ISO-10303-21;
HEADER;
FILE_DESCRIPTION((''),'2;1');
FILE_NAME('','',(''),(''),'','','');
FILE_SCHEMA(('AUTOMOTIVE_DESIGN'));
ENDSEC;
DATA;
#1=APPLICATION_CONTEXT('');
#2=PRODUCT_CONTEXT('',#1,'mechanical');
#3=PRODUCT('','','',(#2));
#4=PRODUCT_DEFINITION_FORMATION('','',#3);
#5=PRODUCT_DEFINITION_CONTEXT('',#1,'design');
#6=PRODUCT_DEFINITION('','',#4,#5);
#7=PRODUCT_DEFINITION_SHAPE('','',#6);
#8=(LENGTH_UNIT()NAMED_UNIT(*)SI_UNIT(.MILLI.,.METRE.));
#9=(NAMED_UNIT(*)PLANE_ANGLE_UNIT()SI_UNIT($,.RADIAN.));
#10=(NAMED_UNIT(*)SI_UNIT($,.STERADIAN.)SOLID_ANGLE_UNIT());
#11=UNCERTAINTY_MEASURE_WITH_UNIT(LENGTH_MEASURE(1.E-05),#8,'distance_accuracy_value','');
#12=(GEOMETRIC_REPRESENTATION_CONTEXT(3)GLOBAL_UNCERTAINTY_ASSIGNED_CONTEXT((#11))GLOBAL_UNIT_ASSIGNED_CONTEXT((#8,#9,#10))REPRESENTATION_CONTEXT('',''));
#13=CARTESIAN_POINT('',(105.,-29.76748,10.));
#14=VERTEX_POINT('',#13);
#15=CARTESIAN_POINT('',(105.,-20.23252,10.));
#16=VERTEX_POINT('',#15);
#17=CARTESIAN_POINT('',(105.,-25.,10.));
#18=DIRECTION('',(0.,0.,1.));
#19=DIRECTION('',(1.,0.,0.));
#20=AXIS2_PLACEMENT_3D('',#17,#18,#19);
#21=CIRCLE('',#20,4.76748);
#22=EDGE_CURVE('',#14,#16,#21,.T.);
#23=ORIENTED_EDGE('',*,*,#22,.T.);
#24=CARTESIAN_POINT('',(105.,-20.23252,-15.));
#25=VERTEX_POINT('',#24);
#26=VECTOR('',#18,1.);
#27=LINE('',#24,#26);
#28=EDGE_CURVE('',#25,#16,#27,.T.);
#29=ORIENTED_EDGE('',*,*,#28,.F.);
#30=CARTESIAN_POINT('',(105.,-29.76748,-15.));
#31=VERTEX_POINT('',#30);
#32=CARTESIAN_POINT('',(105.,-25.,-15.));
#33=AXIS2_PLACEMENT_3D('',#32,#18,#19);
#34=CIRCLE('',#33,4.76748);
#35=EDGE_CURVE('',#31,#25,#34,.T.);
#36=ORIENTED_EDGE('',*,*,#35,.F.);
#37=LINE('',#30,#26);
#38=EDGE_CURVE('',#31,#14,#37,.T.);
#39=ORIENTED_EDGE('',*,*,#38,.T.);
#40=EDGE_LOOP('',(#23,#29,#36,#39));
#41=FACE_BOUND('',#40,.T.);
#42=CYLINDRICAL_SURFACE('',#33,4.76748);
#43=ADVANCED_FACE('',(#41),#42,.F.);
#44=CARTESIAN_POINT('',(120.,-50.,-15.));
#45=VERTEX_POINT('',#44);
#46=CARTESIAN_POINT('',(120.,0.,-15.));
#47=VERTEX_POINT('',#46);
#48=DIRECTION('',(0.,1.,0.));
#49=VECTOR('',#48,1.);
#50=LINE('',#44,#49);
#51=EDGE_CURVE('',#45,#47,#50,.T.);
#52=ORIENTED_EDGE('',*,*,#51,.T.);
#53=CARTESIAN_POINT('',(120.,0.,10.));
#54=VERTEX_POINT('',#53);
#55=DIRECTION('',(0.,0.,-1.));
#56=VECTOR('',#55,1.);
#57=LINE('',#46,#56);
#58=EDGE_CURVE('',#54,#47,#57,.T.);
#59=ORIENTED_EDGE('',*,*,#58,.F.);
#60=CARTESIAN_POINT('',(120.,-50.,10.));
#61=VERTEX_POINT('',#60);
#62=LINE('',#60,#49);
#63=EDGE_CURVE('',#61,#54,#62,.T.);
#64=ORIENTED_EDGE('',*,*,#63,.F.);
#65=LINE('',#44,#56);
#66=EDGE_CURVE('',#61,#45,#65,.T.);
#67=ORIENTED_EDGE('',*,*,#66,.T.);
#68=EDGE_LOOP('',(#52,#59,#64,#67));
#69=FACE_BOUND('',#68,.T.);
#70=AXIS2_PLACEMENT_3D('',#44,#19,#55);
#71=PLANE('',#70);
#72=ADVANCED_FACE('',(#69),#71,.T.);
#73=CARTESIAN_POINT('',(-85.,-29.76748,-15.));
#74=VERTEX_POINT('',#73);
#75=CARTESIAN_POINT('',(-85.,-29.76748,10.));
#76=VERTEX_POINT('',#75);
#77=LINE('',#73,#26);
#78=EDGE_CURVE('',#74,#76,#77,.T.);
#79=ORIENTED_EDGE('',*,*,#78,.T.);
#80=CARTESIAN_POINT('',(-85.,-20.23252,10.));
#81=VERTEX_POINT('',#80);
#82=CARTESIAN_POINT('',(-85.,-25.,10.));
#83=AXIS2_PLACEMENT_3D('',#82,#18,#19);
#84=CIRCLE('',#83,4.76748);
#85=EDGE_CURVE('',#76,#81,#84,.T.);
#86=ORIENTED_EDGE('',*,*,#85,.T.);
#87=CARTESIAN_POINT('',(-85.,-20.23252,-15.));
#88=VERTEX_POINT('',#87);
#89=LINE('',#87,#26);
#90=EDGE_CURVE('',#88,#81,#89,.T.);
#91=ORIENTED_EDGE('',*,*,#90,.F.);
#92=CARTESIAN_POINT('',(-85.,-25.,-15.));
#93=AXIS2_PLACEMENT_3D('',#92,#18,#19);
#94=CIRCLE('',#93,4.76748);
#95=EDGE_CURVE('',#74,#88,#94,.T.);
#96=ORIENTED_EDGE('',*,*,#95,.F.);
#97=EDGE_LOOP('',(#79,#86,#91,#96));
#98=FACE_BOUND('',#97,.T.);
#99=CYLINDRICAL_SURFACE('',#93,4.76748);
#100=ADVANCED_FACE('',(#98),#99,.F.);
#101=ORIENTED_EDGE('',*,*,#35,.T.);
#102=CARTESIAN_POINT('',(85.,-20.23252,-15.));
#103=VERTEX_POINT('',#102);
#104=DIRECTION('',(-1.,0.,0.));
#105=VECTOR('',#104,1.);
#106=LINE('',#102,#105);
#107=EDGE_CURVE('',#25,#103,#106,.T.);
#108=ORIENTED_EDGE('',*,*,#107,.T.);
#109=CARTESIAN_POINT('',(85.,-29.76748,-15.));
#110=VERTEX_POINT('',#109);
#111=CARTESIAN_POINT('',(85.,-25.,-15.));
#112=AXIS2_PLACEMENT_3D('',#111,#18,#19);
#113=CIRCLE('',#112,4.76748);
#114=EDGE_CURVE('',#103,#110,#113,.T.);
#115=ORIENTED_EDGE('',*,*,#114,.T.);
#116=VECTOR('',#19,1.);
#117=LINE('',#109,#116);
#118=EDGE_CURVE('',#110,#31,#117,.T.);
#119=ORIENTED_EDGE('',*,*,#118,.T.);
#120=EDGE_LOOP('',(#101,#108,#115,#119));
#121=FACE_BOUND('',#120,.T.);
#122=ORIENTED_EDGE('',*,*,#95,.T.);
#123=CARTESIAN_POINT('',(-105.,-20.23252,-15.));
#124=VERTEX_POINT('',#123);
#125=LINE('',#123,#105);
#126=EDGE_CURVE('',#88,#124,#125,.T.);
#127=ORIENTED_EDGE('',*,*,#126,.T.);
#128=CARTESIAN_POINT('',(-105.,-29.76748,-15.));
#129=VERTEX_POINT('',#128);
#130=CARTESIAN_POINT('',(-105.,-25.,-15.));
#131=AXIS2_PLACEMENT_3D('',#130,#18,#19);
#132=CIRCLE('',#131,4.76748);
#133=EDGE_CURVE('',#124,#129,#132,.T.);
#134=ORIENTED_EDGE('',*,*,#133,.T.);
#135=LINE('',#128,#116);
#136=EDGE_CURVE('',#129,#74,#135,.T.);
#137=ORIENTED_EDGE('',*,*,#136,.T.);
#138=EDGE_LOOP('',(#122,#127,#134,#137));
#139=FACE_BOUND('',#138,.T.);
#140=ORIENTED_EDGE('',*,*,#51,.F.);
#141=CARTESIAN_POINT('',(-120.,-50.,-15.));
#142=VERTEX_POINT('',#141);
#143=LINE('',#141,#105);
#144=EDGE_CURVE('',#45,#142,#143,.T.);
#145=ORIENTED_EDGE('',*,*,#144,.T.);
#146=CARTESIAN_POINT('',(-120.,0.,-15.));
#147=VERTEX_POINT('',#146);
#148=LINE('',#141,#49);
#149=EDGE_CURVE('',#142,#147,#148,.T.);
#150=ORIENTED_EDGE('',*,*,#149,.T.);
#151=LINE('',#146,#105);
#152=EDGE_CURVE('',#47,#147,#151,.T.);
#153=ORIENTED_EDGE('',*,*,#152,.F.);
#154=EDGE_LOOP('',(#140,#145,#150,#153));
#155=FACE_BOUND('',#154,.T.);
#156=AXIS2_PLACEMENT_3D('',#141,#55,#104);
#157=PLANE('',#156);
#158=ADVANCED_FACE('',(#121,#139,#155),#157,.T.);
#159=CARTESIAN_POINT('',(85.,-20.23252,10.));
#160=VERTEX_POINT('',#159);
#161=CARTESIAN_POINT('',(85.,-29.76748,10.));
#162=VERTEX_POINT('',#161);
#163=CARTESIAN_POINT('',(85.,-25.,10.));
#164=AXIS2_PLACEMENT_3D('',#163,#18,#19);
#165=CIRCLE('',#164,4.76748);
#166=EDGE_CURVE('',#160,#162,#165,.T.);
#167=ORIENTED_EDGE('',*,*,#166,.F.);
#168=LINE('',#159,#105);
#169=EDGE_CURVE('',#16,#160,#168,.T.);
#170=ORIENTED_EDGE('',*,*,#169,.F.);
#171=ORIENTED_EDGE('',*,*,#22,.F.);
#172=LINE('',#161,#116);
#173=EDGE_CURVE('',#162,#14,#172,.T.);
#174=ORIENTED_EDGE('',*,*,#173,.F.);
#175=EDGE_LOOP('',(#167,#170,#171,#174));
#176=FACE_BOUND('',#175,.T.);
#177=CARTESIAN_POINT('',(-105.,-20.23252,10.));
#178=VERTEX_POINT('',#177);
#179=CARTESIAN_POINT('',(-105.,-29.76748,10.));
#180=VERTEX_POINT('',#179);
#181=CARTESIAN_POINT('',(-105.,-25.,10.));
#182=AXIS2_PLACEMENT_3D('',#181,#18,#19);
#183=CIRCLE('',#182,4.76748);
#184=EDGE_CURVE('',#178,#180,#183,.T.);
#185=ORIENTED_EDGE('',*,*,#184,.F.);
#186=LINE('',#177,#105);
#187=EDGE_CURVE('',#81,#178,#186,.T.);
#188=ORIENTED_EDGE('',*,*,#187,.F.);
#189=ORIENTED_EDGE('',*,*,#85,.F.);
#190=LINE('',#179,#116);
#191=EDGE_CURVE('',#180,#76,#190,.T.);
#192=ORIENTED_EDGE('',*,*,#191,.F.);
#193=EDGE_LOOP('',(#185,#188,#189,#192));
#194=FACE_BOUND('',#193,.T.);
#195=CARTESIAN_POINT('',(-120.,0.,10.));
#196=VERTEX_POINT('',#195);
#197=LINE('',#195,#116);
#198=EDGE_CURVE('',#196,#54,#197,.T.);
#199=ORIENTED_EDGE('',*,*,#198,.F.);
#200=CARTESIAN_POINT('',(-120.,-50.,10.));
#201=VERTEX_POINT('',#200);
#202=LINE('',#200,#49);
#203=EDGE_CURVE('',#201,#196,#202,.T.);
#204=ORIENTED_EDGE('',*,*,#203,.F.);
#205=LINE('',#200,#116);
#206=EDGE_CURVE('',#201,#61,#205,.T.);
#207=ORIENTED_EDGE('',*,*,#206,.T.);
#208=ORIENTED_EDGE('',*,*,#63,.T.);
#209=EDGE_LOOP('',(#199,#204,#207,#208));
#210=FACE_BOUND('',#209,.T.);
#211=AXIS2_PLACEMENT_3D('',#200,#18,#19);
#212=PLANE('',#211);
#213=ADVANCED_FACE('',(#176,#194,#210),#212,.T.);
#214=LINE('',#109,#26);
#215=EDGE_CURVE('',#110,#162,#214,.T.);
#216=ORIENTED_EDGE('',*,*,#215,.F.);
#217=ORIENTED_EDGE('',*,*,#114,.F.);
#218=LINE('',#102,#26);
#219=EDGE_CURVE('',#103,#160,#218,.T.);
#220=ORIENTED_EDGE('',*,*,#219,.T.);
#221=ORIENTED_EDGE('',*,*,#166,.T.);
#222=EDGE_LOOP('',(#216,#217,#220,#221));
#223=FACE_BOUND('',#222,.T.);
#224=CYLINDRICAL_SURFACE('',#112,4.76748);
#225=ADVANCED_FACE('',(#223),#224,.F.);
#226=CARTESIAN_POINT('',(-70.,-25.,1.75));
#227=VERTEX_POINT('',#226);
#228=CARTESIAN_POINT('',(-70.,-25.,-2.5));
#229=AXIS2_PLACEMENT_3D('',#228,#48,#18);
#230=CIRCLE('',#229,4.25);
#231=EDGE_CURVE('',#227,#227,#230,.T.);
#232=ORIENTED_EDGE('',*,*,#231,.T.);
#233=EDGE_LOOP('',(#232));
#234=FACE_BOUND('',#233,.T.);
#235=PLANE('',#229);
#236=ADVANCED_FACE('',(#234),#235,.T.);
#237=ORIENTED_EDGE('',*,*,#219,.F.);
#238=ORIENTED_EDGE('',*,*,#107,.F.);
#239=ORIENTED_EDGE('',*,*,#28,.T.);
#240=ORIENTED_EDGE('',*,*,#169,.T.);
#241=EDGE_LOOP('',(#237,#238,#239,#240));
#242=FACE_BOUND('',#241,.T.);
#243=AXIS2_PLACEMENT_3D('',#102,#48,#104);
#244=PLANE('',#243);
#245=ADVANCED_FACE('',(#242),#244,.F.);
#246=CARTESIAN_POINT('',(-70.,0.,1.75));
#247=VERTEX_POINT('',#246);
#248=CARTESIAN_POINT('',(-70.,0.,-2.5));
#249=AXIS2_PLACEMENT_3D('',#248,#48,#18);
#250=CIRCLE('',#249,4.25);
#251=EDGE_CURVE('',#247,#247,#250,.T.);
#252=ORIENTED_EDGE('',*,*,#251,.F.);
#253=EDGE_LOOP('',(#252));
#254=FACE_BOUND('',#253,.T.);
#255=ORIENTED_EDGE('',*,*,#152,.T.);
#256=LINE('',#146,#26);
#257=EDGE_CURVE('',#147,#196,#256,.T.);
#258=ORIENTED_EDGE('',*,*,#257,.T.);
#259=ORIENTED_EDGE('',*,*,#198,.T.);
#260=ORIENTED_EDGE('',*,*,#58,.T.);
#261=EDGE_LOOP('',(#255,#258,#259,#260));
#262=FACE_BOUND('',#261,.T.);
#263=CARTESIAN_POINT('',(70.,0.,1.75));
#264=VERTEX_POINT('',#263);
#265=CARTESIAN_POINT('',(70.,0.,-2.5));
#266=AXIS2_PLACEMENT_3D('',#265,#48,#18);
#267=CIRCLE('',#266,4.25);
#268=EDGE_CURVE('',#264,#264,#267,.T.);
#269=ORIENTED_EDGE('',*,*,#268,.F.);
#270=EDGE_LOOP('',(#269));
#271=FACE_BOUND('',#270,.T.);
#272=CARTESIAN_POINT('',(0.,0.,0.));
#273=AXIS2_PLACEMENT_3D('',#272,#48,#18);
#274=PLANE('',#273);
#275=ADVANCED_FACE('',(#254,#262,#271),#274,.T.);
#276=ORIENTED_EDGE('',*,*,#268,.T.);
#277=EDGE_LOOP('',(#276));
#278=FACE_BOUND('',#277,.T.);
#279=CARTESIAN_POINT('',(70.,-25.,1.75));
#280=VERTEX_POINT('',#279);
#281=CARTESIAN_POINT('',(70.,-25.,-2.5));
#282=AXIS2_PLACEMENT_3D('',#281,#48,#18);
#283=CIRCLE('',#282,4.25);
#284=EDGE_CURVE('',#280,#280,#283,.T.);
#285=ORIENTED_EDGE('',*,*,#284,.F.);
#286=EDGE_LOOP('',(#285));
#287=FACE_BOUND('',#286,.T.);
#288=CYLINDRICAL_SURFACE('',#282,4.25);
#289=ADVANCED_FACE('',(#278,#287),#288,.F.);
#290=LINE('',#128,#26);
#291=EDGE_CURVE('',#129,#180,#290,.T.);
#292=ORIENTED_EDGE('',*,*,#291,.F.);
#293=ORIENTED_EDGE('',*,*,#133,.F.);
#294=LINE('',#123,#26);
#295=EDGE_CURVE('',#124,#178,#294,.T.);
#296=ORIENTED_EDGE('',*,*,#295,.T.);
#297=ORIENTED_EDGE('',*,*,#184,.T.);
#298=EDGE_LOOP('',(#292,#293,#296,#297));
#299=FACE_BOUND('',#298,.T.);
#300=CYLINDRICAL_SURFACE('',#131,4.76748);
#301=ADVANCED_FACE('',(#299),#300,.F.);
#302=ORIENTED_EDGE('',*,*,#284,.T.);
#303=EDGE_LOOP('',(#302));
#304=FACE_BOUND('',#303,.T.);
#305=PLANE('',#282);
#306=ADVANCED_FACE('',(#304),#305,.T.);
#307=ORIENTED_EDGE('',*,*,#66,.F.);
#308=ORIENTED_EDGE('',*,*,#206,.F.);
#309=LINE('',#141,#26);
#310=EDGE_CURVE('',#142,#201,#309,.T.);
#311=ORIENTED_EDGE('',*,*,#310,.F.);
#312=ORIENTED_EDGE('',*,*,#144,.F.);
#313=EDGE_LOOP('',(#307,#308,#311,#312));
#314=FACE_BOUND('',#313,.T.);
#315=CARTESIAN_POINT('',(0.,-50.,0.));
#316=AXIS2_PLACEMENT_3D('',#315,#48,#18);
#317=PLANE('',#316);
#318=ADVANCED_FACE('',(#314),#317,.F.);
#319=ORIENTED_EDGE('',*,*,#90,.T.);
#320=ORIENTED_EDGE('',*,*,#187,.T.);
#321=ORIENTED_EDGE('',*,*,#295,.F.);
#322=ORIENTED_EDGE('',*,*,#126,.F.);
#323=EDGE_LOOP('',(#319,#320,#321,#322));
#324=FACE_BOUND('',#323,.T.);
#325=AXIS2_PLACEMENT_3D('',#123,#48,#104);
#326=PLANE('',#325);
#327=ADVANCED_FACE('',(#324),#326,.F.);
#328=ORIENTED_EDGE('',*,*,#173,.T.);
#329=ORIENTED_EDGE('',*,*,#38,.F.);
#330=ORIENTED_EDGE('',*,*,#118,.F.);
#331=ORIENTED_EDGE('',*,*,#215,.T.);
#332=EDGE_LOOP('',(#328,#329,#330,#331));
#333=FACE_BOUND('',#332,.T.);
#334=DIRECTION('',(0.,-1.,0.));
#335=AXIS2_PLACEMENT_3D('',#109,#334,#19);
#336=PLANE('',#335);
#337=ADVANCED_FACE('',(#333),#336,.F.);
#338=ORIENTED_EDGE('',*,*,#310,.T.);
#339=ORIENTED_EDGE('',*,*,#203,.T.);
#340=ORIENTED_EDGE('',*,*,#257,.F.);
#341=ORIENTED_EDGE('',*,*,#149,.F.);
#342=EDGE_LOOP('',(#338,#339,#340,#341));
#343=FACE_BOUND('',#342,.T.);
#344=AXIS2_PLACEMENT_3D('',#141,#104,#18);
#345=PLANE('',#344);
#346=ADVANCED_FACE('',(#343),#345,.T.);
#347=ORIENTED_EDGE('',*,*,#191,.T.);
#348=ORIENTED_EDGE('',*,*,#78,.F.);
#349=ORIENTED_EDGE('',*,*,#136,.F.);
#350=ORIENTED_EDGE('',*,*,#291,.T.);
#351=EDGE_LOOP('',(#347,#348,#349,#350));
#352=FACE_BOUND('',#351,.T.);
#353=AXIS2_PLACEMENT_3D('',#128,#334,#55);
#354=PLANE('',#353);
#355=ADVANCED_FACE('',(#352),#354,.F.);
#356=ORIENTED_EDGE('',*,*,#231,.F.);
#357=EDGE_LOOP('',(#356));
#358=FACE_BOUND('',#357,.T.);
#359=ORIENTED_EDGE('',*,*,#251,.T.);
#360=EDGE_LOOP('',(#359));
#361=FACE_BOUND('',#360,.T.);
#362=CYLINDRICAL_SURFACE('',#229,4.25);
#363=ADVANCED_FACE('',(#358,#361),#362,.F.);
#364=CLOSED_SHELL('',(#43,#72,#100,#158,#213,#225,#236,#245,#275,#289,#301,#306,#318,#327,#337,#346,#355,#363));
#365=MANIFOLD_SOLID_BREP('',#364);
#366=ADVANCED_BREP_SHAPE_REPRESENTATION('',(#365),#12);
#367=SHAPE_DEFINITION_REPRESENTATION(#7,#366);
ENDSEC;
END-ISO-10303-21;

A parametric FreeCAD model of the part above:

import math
import FreeCAD as App
import Part
import Sketcher
from FreeCAD import Vector


def add_polygon(sketch, points):
    """Adds a closed chain of lines whose ends are joined by coincident constraints."""
    first, n = sketch.GeometryCount, len(points)
    for a, b in zip(points, points[1:] + points[:1]):
        sketch.addGeometry(Part.LineSegment(App.Vector(*a, 0), App.Vector(*b, 0)), False)
    for i in range(n):
        sketch.addConstraint(Sketcher.Constraint("Coincident", first + i, 2, first + (i + 1) % n, 1))

doc = App.newDocument("Part")
body = doc.addObject("PartDesign::Body", "Body")

# Sketch on XZ plane
sketch1 = body.newObject("Sketcher::SketchObject", "Sketch")
sketch1.AttachmentSupport = (doc.getObject("XZ_Plane"), [""])
sketch1.MapMode = "FlatFace"
add_polygon(sketch1, [(-120, -15), (-120, 10), (120, 10), (120, -15)])  # lines 0-3
sketch1.addConstraint([
    Sketcher.Constraint("Vertical", 0),
    Sketcher.Constraint("Horizontal", 1),
    Sketcher.Constraint("Vertical", 2),
    Sketcher.Constraint("Horizontal", 3),
    Sketcher.Constraint("DistanceX", 1, 1, 1, 2, 240.0),
    Sketcher.Constraint("DistanceY", 0, 1, 0, 2, 25.0),
    Sketcher.Constraint("DistanceX", 0, 2, -1, 1, 120.0),
    Sketcher.Constraint("DistanceY", -1, 1, 0, 2, 10.0),
])
pad1 = body.newObject("PartDesign::Pad", "Pad")
pad1.Profile = sketch1
pad1.Length = 50

# Sketch on XZ plane
sketch2 = body.newObject("Sketcher::SketchObject", "Sketch001")
sketch2.AttachmentSupport = (doc.getObject("XZ_Plane"), [""])
sketch2.MapMode = "FlatFace"
sketch2.addGeometry([
    Part.Circle(Vector(-70, -2.5, 0), Vector(0, 0, 1), 4.25),
    Part.Circle(Vector(70, -2.5, 0), Vector(0, 0, 1), 4.25),
], False)
sketch2.addConstraint([
    Sketcher.Constraint("Equal", 0, 1),
    Sketcher.Constraint("Symmetric", 0, 3, 1, 3, -2),
    Sketcher.Constraint("Diameter", 0, 8.5),
    Sketcher.Constraint("DistanceX", 0, 3, -1, 1, 70.0),
    Sketcher.Constraint("DistanceY", 0, 3, -1, 1, 2.5),
])
pocket1 = body.newObject("PartDesign::Pocket", "Pocket")
pocket1.Profile = sketch2
pocket1.Length = 25
pocket1.Reversed = True

# Sketch on XY plane
sketch3 = body.newObject("Sketcher::SketchObject", "Sketch002")
sketch3.AttachmentSupport = (doc.getObject("XY_Plane"), [""])
sketch3.MapMode = "FlatFace"
sketch3.AttachmentOffset = App.Placement(Vector(0, 0, 10), App.Rotation())
sketch3.addGeometry([
    Part.LineSegment(Vector(-85, -20.23252, 0), Vector(-105, -20.23252, 0)),  # 0
    Part.ArcOfCircle(Part.Circle(Vector(-105, -25, 0), Vector(0, 0, 1), 4.76748), math.radians(90), math.radians(270)),  # 1
    Part.LineSegment(Vector(-105, -29.76748, 0), Vector(-85, -29.76748, 0)),  # 2
    Part.ArcOfCircle(Part.Circle(Vector(-85, -25, 0), Vector(0, 0, 1), 4.76748), math.radians(-90), math.radians(90)),  # 3
    Part.LineSegment(Vector(105, -20.23252, 0), Vector(85, -20.23252, 0)),  # 4
    Part.ArcOfCircle(Part.Circle(Vector(85, -25, 0), Vector(0, 0, 1), 4.76748), math.radians(90), math.radians(270)),  # 5
    Part.LineSegment(Vector(85, -29.76748, 0), Vector(105, -29.76748, 0)),  # 6
    Part.ArcOfCircle(Part.Circle(Vector(105, -25, 0), Vector(0, 0, 1), 4.76748), math.radians(-90), math.radians(90)),  # 7
], False)
sketch3.addConstraint([
    Sketcher.Constraint("Tangent", 0, 2, 1, 1),
    Sketcher.Constraint("Tangent", 1, 2, 2, 1),
    Sketcher.Constraint("Tangent", 2, 2, 3, 1),
    Sketcher.Constraint("Tangent", 3, 2, 0, 1),
    Sketcher.Constraint("Tangent", 4, 2, 5, 1),
    Sketcher.Constraint("Tangent", 5, 2, 6, 1),
    Sketcher.Constraint("Tangent", 6, 2, 7, 1),
    Sketcher.Constraint("Tangent", 7, 2, 4, 1),
    Sketcher.Constraint("Horizontal", 0),
    Sketcher.Constraint("Horizontal", 2),
    Sketcher.Constraint("Horizontal", 4),
    Sketcher.Constraint("Horizontal", 6),
    Sketcher.Constraint("Equal", 3, 5),
    Sketcher.Constraint("Symmetric", 3, 3, 5, 3, -2),
    Sketcher.Constraint("Equal", 2, 4),
    Sketcher.Constraint("DistanceX", 0, 2, 0, 1, 20.0),
    Sketcher.Constraint("DistanceX", 1, 3, -1, 1, 105.0),
    Sketcher.Constraint("DistanceY", 1, 3, -1, 1, 25.0),
    Sketcher.Constraint("Radius", 1, 4.76748),
])
pocket2 = body.newObject("PartDesign::Pocket", "Pocket001")
pocket2.Profile = sketch3
pocket2.Type = "ThroughAll"

doc.recompute()
